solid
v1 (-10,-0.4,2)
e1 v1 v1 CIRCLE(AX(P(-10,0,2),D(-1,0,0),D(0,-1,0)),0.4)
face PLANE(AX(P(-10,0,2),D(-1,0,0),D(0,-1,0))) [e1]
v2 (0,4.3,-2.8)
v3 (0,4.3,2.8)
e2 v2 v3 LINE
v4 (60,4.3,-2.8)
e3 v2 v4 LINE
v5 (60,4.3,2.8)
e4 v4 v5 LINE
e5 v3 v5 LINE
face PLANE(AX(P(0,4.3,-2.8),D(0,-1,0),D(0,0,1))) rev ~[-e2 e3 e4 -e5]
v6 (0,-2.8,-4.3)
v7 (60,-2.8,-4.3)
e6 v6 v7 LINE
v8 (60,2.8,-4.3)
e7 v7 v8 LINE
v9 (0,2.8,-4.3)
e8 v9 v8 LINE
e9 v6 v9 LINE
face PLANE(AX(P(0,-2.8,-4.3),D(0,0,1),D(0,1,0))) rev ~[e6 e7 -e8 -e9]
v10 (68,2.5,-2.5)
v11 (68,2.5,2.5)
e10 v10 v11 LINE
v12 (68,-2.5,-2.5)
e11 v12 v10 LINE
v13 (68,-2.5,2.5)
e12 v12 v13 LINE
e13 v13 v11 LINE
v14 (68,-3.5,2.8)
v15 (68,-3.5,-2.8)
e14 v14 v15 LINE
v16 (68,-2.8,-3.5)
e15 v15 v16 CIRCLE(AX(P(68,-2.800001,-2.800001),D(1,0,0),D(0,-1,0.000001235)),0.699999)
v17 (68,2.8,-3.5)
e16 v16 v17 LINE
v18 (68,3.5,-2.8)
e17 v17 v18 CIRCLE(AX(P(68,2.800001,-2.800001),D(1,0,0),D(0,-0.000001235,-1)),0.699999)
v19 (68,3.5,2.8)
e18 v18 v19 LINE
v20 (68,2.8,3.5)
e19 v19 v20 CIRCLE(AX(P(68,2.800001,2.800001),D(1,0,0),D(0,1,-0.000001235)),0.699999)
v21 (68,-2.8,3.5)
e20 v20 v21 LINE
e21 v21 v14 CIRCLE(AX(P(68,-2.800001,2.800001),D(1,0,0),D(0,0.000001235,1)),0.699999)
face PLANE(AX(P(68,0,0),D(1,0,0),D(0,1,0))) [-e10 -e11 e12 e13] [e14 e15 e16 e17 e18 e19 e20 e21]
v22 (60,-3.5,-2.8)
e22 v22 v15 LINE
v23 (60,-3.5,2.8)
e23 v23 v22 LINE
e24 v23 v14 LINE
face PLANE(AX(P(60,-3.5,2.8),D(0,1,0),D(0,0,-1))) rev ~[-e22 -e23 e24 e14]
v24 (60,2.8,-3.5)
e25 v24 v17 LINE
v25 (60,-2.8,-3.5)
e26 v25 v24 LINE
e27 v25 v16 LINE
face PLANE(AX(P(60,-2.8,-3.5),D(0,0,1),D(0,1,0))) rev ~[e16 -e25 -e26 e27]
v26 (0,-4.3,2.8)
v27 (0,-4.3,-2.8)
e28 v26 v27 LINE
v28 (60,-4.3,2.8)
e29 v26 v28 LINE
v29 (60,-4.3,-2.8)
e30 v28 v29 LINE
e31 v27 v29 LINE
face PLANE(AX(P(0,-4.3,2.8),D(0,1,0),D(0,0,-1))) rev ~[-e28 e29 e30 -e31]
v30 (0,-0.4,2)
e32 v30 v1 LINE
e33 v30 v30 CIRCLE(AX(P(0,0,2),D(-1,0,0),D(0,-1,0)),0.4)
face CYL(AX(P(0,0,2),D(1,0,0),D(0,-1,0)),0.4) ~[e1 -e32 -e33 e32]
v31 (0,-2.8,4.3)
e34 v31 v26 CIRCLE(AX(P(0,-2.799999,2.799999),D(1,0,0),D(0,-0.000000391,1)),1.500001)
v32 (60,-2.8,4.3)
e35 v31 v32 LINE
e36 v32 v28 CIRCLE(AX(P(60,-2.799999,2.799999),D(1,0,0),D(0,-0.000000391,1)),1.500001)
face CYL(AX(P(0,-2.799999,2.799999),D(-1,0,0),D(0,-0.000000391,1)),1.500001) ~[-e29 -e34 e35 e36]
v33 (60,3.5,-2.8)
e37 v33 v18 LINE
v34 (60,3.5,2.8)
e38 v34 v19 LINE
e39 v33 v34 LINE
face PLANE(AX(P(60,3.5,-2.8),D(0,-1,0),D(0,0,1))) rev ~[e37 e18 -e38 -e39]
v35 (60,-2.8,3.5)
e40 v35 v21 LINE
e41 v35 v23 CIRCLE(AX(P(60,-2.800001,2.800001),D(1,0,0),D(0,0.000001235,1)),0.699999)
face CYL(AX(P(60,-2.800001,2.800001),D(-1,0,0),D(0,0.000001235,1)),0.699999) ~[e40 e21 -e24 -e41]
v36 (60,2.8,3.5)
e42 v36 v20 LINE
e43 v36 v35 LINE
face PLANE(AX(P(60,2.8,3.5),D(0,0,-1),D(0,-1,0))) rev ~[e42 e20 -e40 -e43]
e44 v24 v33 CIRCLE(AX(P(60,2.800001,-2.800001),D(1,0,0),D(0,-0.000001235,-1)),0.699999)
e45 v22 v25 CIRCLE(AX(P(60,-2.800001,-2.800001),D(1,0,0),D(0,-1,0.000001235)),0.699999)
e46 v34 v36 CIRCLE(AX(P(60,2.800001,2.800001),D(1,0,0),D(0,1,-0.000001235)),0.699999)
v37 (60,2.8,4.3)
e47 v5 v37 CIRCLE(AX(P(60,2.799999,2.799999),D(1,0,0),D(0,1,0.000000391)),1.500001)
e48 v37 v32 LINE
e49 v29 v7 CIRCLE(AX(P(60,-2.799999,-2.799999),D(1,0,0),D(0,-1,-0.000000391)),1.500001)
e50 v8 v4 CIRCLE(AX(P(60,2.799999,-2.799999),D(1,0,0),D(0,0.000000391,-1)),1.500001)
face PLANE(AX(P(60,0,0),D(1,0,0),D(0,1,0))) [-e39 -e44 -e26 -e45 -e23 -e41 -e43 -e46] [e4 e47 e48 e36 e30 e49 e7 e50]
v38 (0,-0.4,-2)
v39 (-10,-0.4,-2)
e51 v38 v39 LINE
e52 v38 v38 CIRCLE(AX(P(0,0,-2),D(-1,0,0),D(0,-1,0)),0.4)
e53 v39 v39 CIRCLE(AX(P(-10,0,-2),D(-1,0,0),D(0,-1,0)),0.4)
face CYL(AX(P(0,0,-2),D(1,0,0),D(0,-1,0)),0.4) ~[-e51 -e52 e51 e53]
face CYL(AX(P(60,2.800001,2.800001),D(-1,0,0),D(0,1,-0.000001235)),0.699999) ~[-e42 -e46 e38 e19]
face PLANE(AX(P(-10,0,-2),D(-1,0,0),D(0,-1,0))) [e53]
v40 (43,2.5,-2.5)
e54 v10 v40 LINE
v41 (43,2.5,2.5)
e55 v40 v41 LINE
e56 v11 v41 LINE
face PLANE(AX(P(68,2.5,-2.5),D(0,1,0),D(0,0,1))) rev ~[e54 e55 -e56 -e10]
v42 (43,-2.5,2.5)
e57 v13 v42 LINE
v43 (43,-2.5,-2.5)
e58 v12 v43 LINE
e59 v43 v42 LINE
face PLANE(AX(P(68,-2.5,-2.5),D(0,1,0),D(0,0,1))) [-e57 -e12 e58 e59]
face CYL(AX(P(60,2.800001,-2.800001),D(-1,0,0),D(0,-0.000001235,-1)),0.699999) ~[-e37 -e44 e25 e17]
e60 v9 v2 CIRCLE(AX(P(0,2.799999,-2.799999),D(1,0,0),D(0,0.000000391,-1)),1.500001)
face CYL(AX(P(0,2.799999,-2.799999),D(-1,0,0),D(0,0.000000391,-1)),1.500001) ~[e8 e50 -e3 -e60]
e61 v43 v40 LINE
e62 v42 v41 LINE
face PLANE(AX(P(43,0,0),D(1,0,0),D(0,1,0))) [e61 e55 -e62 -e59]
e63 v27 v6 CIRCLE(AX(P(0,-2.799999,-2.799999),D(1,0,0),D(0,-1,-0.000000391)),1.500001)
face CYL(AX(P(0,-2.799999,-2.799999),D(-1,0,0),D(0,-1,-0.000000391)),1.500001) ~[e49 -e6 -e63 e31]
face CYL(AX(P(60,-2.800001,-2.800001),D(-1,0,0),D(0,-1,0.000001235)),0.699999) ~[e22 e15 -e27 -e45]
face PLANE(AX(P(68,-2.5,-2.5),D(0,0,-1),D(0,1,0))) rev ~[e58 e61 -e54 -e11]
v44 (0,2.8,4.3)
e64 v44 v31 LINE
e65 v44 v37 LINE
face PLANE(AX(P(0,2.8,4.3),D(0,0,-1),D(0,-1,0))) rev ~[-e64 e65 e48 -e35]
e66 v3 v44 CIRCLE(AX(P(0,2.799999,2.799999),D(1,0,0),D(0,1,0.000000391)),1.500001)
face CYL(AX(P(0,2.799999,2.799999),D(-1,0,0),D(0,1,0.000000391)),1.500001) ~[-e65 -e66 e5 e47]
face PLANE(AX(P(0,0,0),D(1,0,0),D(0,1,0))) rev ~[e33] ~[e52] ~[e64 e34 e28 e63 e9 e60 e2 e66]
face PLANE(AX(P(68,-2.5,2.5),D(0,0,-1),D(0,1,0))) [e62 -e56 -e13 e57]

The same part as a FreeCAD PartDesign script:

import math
import FreeCAD as App
import Part
import Sketcher

V = App.Vector
Q = App.Units.Quantity


def add_polygon(sketch, points):
    """Adds a closed chain of lines whose ends are joined by coincident constraints."""
    first, n = sketch.GeometryCount, len(points)
    for a, b in zip(points, points[1:] + points[:1]):
        sketch.addGeometry(Part.LineSegment(App.Vector(*a, 0), App.Vector(*b, 0)), False)
    for i in range(n):
        sketch.addConstraint(Sketcher.Constraint("Coincident", first + i, 2, first + (i + 1) % n, 1))

doc = App.newDocument("Part")
params = doc.addObject("Spreadsheet::Sheet", "Params")
for row, (alias, value) in enumerate([
    ("sketch1_radius", "1.500001 mm"),
    ("sketch1_width", "5.6 mm"),
    ("pad1_length", "60 mm"),
    ("sketch2_radius", "0.699999 mm"),
    ("sketch2_width", "5.6 mm"),
    ("pad2_length", "8 mm"),
    ("sketch3_diameter", "0.8 mm"),
    ("pad3_length", "10 mm"),
    ("sketch4_width", "5 mm"),
    ("pocket1_length", "25 mm"),
], start=1):
    params.set(f"A{row}", alias)
    params.set(f"B{row}", "=" + value)
    params.setAlias(f"B{row}", alias)

body = doc.addObject("PartDesign::Body", "Body")

sketch1 = body.newObject("Sketcher::SketchObject", "Sketch")
sketch1.AttachmentSupport = (doc.getObject("YZ_Plane"), [""])
sketch1.MapMode = "FlatFace"
sketch1.addGeometry([
    Part.ArcOfCircle(Part.Circle(V(2.799999, 2.799999, 0), V(0, 0, 1), 1.500001), math.radians(0.000022), math.radians(89.999978)),
    Part.LineSegment(V(2.8, 4.3, 0), V(-2.8, 4.3, 0)),
    Part.ArcOfCircle(Part.Circle(V(-2.799999, 2.799999, 0), V(0, 0, 1), 1.500001), math.radians(90.000022), math.radians(179.999978)),
    Part.LineSegment(V(-4.3, 2.8, 0), V(-4.3, -2.8, 0)),
    Part.ArcOfCircle(Part.Circle(V(-2.799999, -2.799999, 0), V(0, 0, 1), 1.500001), math.radians(-179.999978), math.radians(-90.000022)),
    Part.LineSegment(V(-2.8, -4.3, 0), V(2.8, -4.3, 0)),
    Part.ArcOfCircle(Part.Circle(V(2.799999, -2.799999, 0), V(0, 0, 1), 1.500001), math.radians(-89.999978), math.radians(-0.000022)),
    Part.LineSegment(V(4.3, -2.8, 0), V(4.3, 2.8, 0)),
], False)
sketch1.addConstraint([
    Sketcher.Constraint("Tangent", 0, 2, 1, 1),
    Sketcher.Constraint("Tangent", 1, 2, 2, 1),
    Sketcher.Constraint("Tangent", 2, 2, 3, 1),
    Sketcher.Constraint("Tangent", 3, 2, 4, 1),
    Sketcher.Constraint("Tangent", 4, 2, 5, 1),
    Sketcher.Constraint("Tangent", 5, 2, 6, 1),
    Sketcher.Constraint("Tangent", 6, 2, 7, 1),
    Sketcher.Constraint("Tangent", 7, 2, 0, 1),
    Sketcher.Constraint("Horizontal", 1),
    Sketcher.Constraint("Vertical", 3),
    Sketcher.Constraint("Horizontal", 5),
    Sketcher.Constraint("Vertical", 7),
    Sketcher.Constraint("Equal", 0, 2),
    Sketcher.Constraint("Equal", 2, 4),
    Sketcher.Constraint("Equal", 4, 6),
    Sketcher.Constraint("Symmetric", 0, 3, 4, 3, -1, 1),
    Sketcher.Constraint("Equal", 5, 3),
    Sketcher.Constraint("Radius", 0, Q("1.500001 mm")),
    Sketcher.Constraint("DistanceX", 1, 2, 1, 1, Q("5.6 mm")),
])
sketch1.setExpression("Constraints[17]", "Params.sketch1_radius")
sketch1.setExpression("Constraints[18]", "Params.sketch1_width")
pad1 = body.newObject("PartDesign::Pad", "Pad")
pad1.Profile = sketch1
pad1.setExpression("Length", "Params.pad1_length")

sketch2 = body.newObject("Sketcher::SketchObject", "Sketch001")
sketch2.AttachmentSupport = (doc.getObject("YZ_Plane"), [""])
sketch2.MapMode = "FlatFace"
sketch2.AttachmentOffset = App.Placement(V(0, 0, 60), App.Rotation())
sketch2.addGeometry([
    Part.LineSegment(V(2.8, 3.5, 0), V(-2.8, 3.5, 0)),
    Part.ArcOfCircle(Part.Circle(V(-2.800001, 2.800001, 0), V(0, 0, 1), 0.699999), math.radians(89.999929), math.radians(180.000071)),
    Part.LineSegment(V(-3.5, 2.8, 0), V(-3.5, -2.8, 0)),
    Part.ArcOfCircle(Part.Circle(V(-2.800001, -2.800001, 0), V(0, 0, 1), 0.699999), math.radians(179.999929), math.radians(270.000071)),
    Part.LineSegment(V(-2.8, -3.5, 0), V(2.8, -3.5, 0)),
    Part.ArcOfCircle(Part.Circle(V(2.800001, -2.800001, 0), V(0, 0, 1), 0.699999), math.radians(-90.000071), math.radians(0.000071)),
    Part.LineSegment(V(3.5, -2.8, 0), V(3.5, 2.8, 0)),
    Part.ArcOfCircle(Part.Circle(V(2.800001, 2.800001, 0), V(0, 0, 1), 0.699999), math.radians(-0.000071), math.radians(90.000071)),
], False)
sketch2.addConstraint([
    Sketcher.Constraint("Tangent", 0, 2, 1, 1),
    Sketcher.Constraint("Tangent", 1, 2, 2, 1),
    Sketcher.Constraint("Tangent", 2, 2, 3, 1),
    Sketcher.Constraint("Tangent", 3, 2, 4, 1),
    Sketcher.Constraint("Tangent", 4, 2, 5, 1),
    Sketcher.Constraint("Tangent", 5, 2, 6, 1),
    Sketcher.Constraint("Tangent", 6, 2, 7, 1),
    Sketcher.Constraint("Tangent", 7, 2, 0, 1),
    Sketcher.Constraint("Horizontal", 0),
    Sketcher.Constraint("Vertical", 2),
    Sketcher.Constraint("Horizontal", 4),
    Sketcher.Constraint("Vertical", 6),
    Sketcher.Constraint("Equal", 1, 3),
    Sketcher.Constraint("Equal", 3, 5),
    Sketcher.Constraint("Equal", 5, 7),
    Sketcher.Constraint("Symmetric", 1, 3, 5, 3, -1, 1),
    Sketcher.Constraint("Equal", 4, 2),
    Sketcher.Constraint("Radius", 1, Q("0.699999 mm")),
    Sketcher.Constraint("DistanceX", 0, 2, 0, 1, Q("5.6 mm")),
])
sketch2.setExpression("Constraints[17]", "Params.sketch2_radius")
sketch2.setExpression("Constraints[18]", "Params.sketch2_width")
pad2 = body.newObject("PartDesign::Pad", "Pad001")
pad2.Profile = sketch2
pad2.setExpression("Length", "Params.pad2_length")

sketch3 = body.newObject("Sketcher::SketchObject", "Sketch002")
sketch3.AttachmentSupport = (doc.getObject("YZ_Plane"), [""])
sketch3.MapMode = "FlatFace"
sketch3.addGeometry([
    Part.Circle(V(0, 2, 0), V(0, 0, 1), 0.4),
    Part.Circle(V(0, -2, 0), V(0, 0, 1), 0.4),
], False)
sketch3.addConstraint([
    Sketcher.Constraint("Equal", 0, 1),
    Sketcher.Constraint("Symmetric", 0, 3, 1, 3, -1, 1),
    Sketcher.Constraint("PointOnObject", 0, 3, -2),
    Sketcher.Constraint("Diameter", 0, Q("0.8 mm")),
    Sketcher.Constraint("DistanceY", -1, 1, 0, 3, Q("2 mm")),
])
sketch3.setExpression("Constraints[3]", "Params.sketch3_diameter")
pad3 = body.newObject("PartDesign::Pad", "Pad002")
pad3.Profile = sketch3
pad3.setExpression("Length", "Params.pad3_length")
pad3.Reversed = True

sketch4 = body.newObject("Sketcher::SketchObject", "Sketch003")
sketch4.AttachmentSupport = (doc.getObject("YZ_Plane"), [""])
sketch4.MapMode = "FlatFace"
sketch4.AttachmentOffset = App.Placement(V(0, 0, 68), App.Rotation())
add_polygon(sketch4, [(-2.5, 2.5), (-2.5, -2.5), (2.5, -2.5), (2.5, 2.5)])
sketch4.addConstraint([
    Sketcher.Constraint("Vertical", 0),
    Sketcher.Constraint("Horizontal", 1),
    Sketcher.Constraint("Vertical", 2),
    Sketcher.Constraint("Horizontal", 3),
    Sketcher.Constraint("Symmetric", 0, 2, 2, 2, -1, 1),
    Sketcher.Constraint("Equal", 3, 0),
    Sketcher.Constraint("DistanceX", 1, 1, 1, 2, Q("5 mm")),
])
sketch4.setExpression("Constraints[10]", "Params.sketch4_width")
pocket1 = body.newObject("PartDesign::Pocket", "Pocket")
pocket1.Profile = sketch4
pocket1.setExpression("Length", "Params.pocket1_length")

doc.recompute()
